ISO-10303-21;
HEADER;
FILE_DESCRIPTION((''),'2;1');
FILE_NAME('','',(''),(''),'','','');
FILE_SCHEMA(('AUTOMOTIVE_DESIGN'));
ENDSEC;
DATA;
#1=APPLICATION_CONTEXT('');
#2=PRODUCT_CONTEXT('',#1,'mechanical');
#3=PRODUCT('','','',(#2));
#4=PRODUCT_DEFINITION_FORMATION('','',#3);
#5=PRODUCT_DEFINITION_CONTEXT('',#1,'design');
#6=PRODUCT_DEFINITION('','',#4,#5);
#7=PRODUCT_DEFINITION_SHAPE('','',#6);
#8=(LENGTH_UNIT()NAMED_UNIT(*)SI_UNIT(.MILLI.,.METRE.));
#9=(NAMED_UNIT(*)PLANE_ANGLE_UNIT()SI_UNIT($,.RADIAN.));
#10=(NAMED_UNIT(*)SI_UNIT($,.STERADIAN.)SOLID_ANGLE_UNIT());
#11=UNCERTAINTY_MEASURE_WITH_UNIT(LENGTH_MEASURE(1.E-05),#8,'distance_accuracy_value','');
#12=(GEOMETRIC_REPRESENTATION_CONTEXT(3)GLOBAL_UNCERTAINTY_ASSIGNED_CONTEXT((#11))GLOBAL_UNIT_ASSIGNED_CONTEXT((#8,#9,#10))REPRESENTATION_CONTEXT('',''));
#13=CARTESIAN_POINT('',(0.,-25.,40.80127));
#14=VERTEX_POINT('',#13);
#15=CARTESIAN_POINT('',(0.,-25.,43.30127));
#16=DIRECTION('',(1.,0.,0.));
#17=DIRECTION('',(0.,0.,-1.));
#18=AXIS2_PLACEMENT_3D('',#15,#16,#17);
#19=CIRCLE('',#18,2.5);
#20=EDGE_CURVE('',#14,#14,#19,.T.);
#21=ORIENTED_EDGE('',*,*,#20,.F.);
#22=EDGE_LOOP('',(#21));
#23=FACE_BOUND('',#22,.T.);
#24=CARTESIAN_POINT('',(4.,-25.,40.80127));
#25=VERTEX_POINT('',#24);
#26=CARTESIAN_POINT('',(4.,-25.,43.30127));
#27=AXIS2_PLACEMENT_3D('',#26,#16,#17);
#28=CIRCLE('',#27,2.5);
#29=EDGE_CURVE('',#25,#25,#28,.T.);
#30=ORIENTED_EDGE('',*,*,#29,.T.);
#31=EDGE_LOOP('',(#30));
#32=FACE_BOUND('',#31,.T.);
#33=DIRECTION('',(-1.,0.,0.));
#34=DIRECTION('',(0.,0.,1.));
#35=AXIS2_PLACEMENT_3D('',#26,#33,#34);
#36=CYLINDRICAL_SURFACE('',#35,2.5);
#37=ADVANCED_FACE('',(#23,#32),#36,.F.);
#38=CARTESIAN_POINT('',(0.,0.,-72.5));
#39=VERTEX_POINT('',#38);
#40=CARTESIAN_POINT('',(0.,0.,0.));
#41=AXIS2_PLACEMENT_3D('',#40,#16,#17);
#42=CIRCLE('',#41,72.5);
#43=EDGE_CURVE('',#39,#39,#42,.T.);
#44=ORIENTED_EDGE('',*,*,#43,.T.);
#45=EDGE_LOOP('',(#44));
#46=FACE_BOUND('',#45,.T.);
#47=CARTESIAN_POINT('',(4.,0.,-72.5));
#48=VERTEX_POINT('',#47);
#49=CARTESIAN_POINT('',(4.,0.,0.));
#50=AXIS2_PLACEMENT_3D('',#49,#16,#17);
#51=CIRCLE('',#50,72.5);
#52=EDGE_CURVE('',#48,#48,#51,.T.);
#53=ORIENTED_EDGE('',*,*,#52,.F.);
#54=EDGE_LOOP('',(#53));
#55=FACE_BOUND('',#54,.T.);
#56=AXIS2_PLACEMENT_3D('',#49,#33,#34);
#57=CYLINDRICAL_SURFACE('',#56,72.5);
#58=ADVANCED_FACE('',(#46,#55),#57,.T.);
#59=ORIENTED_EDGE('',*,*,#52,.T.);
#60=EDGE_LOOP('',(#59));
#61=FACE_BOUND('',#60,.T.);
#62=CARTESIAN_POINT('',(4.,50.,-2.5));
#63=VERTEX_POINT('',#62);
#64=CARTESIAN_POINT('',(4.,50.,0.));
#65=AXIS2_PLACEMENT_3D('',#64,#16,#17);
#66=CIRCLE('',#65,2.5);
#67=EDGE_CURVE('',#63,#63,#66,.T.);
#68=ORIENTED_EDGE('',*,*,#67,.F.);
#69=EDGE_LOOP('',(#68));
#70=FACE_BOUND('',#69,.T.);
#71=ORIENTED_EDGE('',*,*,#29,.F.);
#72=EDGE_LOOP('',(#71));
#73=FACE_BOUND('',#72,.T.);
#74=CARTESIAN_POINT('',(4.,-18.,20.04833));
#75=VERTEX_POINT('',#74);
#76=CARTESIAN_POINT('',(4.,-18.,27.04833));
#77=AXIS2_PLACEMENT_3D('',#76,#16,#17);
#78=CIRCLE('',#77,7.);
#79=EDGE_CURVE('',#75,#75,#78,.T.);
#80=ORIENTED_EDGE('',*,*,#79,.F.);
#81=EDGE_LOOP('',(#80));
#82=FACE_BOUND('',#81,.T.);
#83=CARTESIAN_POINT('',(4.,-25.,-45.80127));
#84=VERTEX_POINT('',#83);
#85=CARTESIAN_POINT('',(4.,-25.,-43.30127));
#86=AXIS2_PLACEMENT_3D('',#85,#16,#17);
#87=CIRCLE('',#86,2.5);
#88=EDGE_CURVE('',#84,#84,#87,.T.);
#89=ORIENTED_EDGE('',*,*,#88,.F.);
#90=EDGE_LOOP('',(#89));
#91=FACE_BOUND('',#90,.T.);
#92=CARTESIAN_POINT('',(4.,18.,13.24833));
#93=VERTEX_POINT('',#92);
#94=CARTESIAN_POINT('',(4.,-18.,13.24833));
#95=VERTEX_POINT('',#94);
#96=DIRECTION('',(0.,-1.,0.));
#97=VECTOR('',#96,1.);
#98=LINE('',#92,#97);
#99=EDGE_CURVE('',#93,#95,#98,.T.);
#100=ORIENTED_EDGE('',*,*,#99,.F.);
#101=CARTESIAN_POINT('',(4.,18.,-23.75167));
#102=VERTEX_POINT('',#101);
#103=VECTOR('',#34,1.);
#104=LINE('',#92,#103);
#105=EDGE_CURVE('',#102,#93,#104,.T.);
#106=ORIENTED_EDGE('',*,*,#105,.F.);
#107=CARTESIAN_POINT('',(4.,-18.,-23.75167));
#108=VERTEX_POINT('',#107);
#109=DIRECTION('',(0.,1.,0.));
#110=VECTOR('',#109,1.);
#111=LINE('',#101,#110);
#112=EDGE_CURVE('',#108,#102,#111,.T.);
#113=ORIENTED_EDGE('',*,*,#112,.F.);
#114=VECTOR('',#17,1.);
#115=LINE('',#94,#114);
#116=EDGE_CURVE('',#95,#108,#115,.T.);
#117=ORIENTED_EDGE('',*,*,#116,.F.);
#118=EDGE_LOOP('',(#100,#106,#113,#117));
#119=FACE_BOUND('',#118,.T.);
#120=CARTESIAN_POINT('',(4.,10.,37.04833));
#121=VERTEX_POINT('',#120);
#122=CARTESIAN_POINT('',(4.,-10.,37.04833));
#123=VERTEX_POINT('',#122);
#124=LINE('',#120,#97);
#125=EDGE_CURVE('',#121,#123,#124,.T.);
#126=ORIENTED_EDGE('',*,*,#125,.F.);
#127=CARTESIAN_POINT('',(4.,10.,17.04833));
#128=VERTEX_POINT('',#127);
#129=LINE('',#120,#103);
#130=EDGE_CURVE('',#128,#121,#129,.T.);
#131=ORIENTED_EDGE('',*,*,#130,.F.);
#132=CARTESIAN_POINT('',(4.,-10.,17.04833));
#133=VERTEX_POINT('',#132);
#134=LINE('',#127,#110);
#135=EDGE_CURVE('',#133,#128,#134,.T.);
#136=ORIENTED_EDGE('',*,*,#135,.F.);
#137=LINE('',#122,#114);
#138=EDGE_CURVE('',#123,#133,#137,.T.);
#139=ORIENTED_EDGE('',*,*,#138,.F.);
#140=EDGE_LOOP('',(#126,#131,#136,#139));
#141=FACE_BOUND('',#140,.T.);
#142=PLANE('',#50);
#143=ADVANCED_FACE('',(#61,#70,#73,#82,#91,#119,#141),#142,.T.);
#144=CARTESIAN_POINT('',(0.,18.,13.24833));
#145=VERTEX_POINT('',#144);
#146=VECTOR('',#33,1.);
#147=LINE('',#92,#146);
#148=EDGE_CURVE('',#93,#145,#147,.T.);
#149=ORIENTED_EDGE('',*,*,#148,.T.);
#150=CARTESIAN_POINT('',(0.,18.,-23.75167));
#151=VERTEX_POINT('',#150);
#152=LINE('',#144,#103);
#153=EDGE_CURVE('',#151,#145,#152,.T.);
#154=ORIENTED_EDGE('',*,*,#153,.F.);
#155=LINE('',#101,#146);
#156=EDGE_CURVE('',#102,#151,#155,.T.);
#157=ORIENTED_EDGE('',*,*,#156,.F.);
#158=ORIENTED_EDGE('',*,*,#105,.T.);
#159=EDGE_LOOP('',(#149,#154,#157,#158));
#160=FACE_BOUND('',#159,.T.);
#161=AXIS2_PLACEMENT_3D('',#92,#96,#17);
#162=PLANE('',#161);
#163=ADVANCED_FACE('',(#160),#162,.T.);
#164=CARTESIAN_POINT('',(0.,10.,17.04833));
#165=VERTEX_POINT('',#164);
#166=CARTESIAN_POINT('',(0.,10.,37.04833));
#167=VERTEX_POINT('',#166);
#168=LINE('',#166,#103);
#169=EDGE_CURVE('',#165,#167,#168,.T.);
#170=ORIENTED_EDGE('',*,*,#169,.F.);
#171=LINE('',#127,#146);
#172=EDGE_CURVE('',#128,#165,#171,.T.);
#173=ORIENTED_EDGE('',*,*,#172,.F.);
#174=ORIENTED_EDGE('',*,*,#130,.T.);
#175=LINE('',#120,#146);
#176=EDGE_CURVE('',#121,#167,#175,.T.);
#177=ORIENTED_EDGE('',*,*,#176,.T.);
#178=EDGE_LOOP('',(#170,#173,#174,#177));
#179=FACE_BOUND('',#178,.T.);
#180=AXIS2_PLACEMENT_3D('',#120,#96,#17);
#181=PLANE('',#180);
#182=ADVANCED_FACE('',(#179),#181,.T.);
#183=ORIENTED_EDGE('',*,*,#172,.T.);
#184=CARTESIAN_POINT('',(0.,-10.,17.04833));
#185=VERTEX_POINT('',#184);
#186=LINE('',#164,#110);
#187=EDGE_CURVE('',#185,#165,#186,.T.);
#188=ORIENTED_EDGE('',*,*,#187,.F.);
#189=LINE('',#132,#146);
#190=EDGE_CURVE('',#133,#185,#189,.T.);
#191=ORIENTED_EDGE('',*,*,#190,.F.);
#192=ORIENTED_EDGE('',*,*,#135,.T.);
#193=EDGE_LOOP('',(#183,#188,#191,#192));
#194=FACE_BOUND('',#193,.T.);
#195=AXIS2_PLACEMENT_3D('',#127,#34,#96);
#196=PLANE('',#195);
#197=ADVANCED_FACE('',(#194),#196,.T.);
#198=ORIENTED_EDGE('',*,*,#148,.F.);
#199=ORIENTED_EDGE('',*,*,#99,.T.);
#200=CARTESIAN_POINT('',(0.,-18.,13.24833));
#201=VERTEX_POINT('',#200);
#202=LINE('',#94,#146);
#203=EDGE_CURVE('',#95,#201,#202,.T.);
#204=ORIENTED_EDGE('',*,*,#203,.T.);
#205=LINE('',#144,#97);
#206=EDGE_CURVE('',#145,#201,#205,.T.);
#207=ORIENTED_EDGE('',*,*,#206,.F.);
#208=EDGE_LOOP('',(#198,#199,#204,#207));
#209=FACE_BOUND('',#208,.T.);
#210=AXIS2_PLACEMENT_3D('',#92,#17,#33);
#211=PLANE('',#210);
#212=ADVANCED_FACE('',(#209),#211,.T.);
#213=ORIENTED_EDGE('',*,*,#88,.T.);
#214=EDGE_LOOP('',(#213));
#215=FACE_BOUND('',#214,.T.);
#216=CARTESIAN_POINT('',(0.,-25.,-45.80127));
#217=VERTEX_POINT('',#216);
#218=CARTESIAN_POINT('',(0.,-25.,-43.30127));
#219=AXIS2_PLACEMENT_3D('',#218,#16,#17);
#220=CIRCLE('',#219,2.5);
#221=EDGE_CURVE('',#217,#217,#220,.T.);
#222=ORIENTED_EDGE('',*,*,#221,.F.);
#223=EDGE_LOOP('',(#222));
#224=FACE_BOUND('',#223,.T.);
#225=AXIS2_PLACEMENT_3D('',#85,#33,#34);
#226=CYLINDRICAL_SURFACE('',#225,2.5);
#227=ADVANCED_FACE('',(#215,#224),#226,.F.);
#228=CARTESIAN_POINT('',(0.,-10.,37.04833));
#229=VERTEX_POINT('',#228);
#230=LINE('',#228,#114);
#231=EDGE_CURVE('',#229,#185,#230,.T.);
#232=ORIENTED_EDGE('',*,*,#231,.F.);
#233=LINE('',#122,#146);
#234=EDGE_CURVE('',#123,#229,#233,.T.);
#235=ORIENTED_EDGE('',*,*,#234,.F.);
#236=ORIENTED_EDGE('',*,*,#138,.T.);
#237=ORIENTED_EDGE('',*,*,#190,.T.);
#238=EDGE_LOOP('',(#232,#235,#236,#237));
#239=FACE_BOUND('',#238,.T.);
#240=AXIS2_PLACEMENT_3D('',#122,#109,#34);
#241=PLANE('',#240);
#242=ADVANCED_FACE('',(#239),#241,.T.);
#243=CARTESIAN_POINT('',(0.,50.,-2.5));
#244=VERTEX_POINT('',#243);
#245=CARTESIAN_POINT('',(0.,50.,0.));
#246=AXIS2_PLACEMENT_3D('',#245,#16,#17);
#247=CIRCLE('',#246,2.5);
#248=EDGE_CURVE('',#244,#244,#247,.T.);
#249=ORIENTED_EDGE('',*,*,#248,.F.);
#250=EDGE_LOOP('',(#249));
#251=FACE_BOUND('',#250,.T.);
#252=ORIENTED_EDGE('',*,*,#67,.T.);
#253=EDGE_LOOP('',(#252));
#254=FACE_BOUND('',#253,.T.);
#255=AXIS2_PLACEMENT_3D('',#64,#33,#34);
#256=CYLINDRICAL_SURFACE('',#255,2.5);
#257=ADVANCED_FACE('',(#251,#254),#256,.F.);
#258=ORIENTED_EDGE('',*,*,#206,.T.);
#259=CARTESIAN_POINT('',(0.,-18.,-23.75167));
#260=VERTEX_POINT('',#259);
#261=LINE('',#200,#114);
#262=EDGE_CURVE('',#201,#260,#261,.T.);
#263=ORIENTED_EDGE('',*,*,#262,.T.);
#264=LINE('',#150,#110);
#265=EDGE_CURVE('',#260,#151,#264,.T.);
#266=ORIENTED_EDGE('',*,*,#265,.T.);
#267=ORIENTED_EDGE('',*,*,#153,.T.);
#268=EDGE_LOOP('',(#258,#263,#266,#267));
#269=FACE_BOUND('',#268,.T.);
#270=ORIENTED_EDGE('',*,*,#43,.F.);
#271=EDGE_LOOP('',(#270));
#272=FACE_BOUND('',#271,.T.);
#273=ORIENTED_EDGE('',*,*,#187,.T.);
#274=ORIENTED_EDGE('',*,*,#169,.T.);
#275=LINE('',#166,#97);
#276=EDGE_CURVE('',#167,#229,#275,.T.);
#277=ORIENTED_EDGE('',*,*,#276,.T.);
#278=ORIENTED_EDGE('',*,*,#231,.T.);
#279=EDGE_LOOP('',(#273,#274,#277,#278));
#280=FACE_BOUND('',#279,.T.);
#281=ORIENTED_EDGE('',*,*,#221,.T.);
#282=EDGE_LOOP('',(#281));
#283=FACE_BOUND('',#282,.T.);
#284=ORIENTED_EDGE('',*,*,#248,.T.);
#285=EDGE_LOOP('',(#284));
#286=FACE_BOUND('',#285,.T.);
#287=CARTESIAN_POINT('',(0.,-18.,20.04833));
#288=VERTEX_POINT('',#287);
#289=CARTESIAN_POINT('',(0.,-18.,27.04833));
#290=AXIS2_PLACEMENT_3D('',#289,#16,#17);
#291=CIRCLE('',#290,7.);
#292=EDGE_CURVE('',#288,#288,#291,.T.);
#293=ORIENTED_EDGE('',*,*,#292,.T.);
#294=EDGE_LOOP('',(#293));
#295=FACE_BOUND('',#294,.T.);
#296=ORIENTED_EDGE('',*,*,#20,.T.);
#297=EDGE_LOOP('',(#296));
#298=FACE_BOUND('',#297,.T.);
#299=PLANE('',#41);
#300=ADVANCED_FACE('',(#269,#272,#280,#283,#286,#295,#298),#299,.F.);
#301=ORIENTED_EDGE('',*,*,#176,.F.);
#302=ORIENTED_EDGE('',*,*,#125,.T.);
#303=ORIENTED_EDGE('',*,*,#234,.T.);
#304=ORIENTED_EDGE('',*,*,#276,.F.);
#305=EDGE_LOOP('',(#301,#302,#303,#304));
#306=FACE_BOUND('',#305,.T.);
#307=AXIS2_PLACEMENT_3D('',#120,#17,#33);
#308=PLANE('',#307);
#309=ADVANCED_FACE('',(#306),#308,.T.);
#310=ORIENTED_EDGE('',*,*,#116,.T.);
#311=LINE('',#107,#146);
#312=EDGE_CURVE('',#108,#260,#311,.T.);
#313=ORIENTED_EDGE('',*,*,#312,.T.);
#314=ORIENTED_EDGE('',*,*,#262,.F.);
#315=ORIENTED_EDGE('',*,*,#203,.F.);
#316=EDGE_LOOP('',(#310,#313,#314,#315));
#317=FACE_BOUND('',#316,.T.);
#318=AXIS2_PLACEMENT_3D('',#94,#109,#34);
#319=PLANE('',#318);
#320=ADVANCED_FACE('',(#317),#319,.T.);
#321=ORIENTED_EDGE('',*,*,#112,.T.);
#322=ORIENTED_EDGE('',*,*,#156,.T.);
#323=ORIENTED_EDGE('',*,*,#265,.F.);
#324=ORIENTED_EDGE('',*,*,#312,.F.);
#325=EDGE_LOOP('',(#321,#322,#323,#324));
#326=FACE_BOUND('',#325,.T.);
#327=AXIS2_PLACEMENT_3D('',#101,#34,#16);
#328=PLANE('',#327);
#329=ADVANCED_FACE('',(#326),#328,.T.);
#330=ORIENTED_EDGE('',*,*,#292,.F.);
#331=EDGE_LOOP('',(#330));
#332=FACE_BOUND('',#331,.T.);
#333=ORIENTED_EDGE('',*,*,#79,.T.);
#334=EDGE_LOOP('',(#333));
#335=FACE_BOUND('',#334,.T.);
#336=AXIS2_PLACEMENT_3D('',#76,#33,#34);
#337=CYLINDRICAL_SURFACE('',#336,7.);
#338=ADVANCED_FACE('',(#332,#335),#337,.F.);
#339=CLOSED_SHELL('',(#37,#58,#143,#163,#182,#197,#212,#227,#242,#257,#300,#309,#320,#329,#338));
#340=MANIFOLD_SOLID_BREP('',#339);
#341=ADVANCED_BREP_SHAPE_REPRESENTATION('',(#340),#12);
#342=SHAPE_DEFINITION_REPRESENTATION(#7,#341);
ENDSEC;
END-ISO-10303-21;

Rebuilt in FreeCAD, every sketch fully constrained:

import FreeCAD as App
import Part
import Sketcher

V = App.Vector

doc = App.newDocument("Part")
body = doc.addObject("PartDesign::Body", "Body")

# Sketch on YZ plane
sketch1 = body.newObject("Sketcher::SketchObject", "Sketch")
sketch1.AttachmentSupport = (doc.getObject("YZ_Plane"), [""])
sketch1.MapMode = "FlatFace"
sketch1.addGeometry(Part.Circle(V(0, 0, 0), V(0, 0, 1), 72.5), False)
sketch1.addGeometry(Part.Circle(V(-25, 43.30127, 0), V(0, 0, 1), 2.5), False)
sketch1.addGeometry(Part.Circle(V(-18, 27.04833, 0), V(0, 0, 1), 7), False)
sketch1.addGeometry(Part.LineSegment(V(-10, 17.04833, 0), V(-10, 37.04833, 0)), False)
sketch1.addGeometry(Part.LineSegment(V(-10, 37.04833, 0), V(10, 37.04833, 0)), False)
sketch1.addGeometry(Part.LineSegment(V(10, 37.04833, 0), V(10, 17.04833, 0)), False)
sketch1.addGeometry(Part.LineSegment(V(10, 17.04833, 0), V(-10, 17.04833, 0)), False)
sketch1.addGeometry(Part.Circle(V(-25, -43.30127, 0), V(0, 0, 1), 2.5), False)
sketch1.addGeometry(Part.LineSegment(V(-18, -23.75167, 0), V(-18, 13.24833, 0)), False)
sketch1.addGeometry(Part.LineSegment(V(-18, 13.24833, 0), V(18, 13.24833, 0)), False)
sketch1.addGeometry(Part.LineSegment(V(18, 13.24833, 0), V(18, -23.75167, 0)), False)
sketch1.addGeometry(Part.LineSegment(V(18, -23.75167, 0), V(-18, -23.75167, 0)), False)
sketch1.addGeometry(Part.Circle(V(50, 0, 0), V(0, 0, 1), 2.5), False)
sketch1.addConstraint(Sketcher.Constraint("Coincident", 3, 2, 4, 1))
sketch1.addConstraint(Sketcher.Constraint("Coincident", 4, 2, 5, 1))
sketch1.addConstraint(Sketcher.Constraint("Coincident", 5, 2, 6, 1))
sketch1.addConstraint(Sketcher.Constraint("Coincident", 6, 2, 3, 1))
sketch1.addConstraint(Sketcher.Constraint("Coincident", 8, 2, 9, 1))
sketch1.addConstraint(Sketcher.Constraint("Coincident", 9, 2, 10, 1))
sketch1.addConstraint(Sketcher.Constraint("Coincident", 10, 2, 11, 1))
sketch1.addConstraint(Sketcher.Constraint("Coincident", 11, 2, 8, 1))
sketch1.addConstraint(Sketcher.Constraint("Vertical", 3))
sketch1.addConstraint(Sketcher.Constraint("Horizontal", 4))
sketch1.addConstraint(Sketcher.Constraint("Vertical", 5))
sketch1.addConstraint(Sketcher.Constraint("Horizontal", 6))
sketch1.addConstraint(Sketcher.Constraint("Vertical", 8))
sketch1.addConstraint(Sketcher.Constraint("Horizontal", 9))
sketch1.addConstraint(Sketcher.Constraint("Vertical", 10))
sketch1.addConstraint(Sketcher.Constraint("Horizontal", 11))
sketch1.addConstraint(Sketcher.Constraint("Coincident", 0, 3, -1, 1))
sketch1.addConstraint(Sketcher.Constraint("Equal", 1, 7))
sketch1.addConstraint(Sketcher.Constraint("Equal", 7, 12))
sketch1.addConstraint(Sketcher.Constraint("Symmetric", 1, 3, 7, 3, -1))
sketch1.addConstraint(Sketcher.Constraint("PointOnObject", 12, 3, -1))
sketch1.addConstraint(Sketcher.Constraint("Vertical", 2, 3, 8, 2))
sketch1.addConstraint(Sketcher.Constraint("Equal", 6, 3))
sketch1.addConstraint(Sketcher.Constraint("Diameter", 0, 145.0))
sketch1.addConstraint(Sketcher.Constraint("Diameter", 1, 5.0))
sketch1.addConstraint(Sketcher.Constraint("Diameter", 2, 14.0))
sketch1.addConstraint(Sketcher.Constraint("DistanceX", 4, 1, 4, 2, 20.0))
sketch1.addConstraint(Sketcher.Constraint("DistanceX", 9, 1, 9, 2, 36.0))
sketch1.addConstraint(Sketcher.Constraint("DistanceY", 8, 1, 8, 2, 37.0))
sketch1.addConstraint(Sketcher.Constraint("DistanceX", 1, 3, -1, 1, 25.0))
sketch1.addConstraint(Sketcher.Constraint("DistanceX", 2, 3, -1, 1, 18.0))
sketch1.addConstraint(Sketcher.Constraint("DistanceX", -1, 1, 12, 3, 50.0))
sketch1.addConstraint(Sketcher.Constraint("DistanceX", 3, 2, -1, 1, 10.0))
sketch1.addConstraint(Sketcher.Constraint("DistanceY", 2, 3, 3, 2, 10.0))
sketch1.addConstraint(Sketcher.Constraint("DistanceY", 8, 2, 6, 2, 3.8))
sketch1.addConstraint(Sketcher.Constraint("DistanceY", 7, 3, 2, 3, 70.3496))
sketch1.addConstraint(Sketcher.Constraint("DistanceY", -1, 1, 1, 3, 43.30127))
pad1 = body.newObject("PartDesign::Pad", "Pad")
pad1.Profile = sketch1
pad1.Length = 4

doc.recompute()
